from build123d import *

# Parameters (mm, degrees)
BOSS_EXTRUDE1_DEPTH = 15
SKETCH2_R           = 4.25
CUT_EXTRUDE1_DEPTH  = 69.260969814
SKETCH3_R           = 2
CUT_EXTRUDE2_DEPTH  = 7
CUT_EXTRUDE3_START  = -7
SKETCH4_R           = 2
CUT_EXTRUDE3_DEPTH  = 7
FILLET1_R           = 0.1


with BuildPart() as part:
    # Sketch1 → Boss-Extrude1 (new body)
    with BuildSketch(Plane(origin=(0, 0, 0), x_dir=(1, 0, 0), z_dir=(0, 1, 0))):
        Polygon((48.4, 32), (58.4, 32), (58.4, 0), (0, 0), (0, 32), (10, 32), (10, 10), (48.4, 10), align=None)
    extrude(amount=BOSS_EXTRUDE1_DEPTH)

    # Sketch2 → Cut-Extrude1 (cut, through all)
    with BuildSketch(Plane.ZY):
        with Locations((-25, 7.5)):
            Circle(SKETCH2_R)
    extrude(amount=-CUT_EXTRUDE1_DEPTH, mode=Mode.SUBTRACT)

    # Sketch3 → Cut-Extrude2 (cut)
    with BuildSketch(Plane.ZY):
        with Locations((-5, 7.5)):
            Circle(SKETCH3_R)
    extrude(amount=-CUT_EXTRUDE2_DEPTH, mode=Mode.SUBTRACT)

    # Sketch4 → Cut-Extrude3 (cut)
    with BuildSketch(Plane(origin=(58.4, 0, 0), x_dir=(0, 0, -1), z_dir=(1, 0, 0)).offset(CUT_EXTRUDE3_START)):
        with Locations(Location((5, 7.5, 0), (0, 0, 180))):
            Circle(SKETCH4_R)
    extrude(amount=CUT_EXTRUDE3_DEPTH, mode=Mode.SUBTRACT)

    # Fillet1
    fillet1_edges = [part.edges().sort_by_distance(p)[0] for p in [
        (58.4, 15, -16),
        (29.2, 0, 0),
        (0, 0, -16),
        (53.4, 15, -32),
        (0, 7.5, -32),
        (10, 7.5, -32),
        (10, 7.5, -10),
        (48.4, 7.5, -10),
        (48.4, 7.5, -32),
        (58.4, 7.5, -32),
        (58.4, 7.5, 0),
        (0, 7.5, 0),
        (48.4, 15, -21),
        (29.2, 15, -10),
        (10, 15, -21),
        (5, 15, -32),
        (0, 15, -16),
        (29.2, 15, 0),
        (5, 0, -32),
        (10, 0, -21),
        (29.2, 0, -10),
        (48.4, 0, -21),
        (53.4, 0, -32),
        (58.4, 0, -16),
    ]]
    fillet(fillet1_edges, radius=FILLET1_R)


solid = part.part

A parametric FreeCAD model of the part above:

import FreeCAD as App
import Part
import Sketcher

V = App.Vector


def edges_at(feature, points):
    """Names of the edges that pass closest to the given points."""
    edges = feature.Shape.Edges
    near = lambda p: min(range(len(edges)), key=lambda i: edges[i].distToShape(Part.Vertex(*p))[0])
    return sorted({f"Edge{near(p) + 1}" for p in points})

doc = App.newDocument("Part")
body = doc.addObject("PartDesign::Body", "Body")

sketch1 = doc.addObject("Sketcher::SketchObject", "Sketch")
body.addObject(sketch1)
sketch1.AttachmentSupport = (doc.XZ_Plane, [""])
sketch1.MapMode = "FlatFace"
sketch1.addGeometry(Part.LineSegment(V(58, -32, 0), V(48, -32, 0)), False)
sketch1.addGeometry(Part.LineSegment(V(48, -32, 0), V(48, -10, 0)), False)
sketch1.addGeometry(Part.LineSegment(V(48, -10, 0), V(10, -10, 0)), False)
sketch1.addGeometry(Part.LineSegment(V(10, -10, 0), V(10, -32, 0)), False)
sketch1.addGeometry(Part.LineSegment(V(10, -32, 0), V(0, -32, 0)), False)
sketch1.addGeometry(Part.LineSegment(V(0, -32, 0), V(0, 0, 0)), False)
sketch1.addGeometry(Part.LineSegment(V(0, 0, 0), V(58, 0, 0)), False)
sketch1.addGeometry(Part.LineSegment(V(58, 0, 0), V(58, -32, 0)), False)
sketch1.addConstraint(Sketcher.Constraint("Coincident", 0, 2, 1, 1))
sketch1.addConstraint(Sketcher.Constraint("Coincident", 1, 2, 2, 1))
sketch1.addConstraint(Sketcher.Constraint("Coincident", 2, 2, 3, 1))
sketch1.addConstraint(Sketcher.Constraint("Coincident", 3, 2, 4, 1))
sketch1.addConstraint(Sketcher.Constraint("Coincident", 4, 2, 5, 1))
sketch1.addConstraint(Sketcher.Constraint("Coincident", 5, 2, 6, 1))
sketch1.addConstraint(Sketcher.Constraint("Coincident", 6, 2, 7, 1))
sketch1.addConstraint(Sketcher.Constraint("Coincident", 7, 2, 0, 1))
sketch1.addConstraint(Sketcher.Constraint("Horizontal", 0))
sketch1.addConstraint(Sketcher.Constraint("Vertical", 1))
sketch1.addConstraint(Sketcher.Constraint("Horizontal", 2))
sketch1.addConstraint(Sketcher.Constraint("Vertical", 3))
sketch1.addConstraint(Sketcher.Constraint("Horizontal", 4))
sketch1.addConstraint(Sketcher.Constraint("Vertical", 5))
sketch1.addConstraint(Sketcher.Constraint("Horizontal", 6))
sketch1.addConstraint(Sketcher.Constraint("Vertical", 7))
sketch1.addConstraint(Sketcher.Constraint("Coincident", 5, 2, -1, 1))
sketch1.addConstraint(Sketcher.Constraint("Horizontal", 0, 2, 3, 2))
sketch1.addConstraint(Sketcher.Constraint("Equal", 0, 4))
sketch1.addConstraint(Sketcher.Constraint("DistanceX", 0, 2, 0, 1, 10.0))
sketch1.addConstraint(Sketcher.Constraint("DistanceY", 1, 1, 1, 2, 22.0))
sketch1.addConstraint(Sketcher.Constraint("DistanceY", 5, 1, 5, 2, 32.0))
sketch1.addConstraint(Sketcher.Constraint("DistanceX", 2, 2, 2, 1, 38.4))
pad1 = doc.addObject("PartDesign::Pad", "Pad")
body.addObject(pad1)
pad1.Profile = sketch1
pad1.Length = 15
pad1.Reversed = True

sketch2 = doc.addObject("Sketcher::SketchObject", "Sketch001")
body.addObject(sketch2)
sketch2.AttachmentSupport = (doc.YZ_Plane, [""])
sketch2.MapMode = "FlatFace"
sketch2.addGeometry(Part.Circle(V(7.5, -25, 0), V(0, 0, 1), 4.2), False)
sketch2.addConstraint(Sketcher.Constraint("Diameter", 0, 8.5))
sketch2.addConstraint(Sketcher.Constraint("DistanceY", 0, 3, -1, 1, 25.0))
sketch2.addConstraint(Sketcher.Constraint("DistanceX", -1, 1, 0, 3, 7.5))
pocket1 = doc.addObject("PartDesign::Pocket", "Pocket")
body.addObject(pocket1)
pocket1.Profile = sketch2
pocket1.Type = "ThroughAll"
pocket1.Reversed = True

sketch3 = doc.addObject("Sketcher::SketchObject", "Sketch002")
body.addObject(sketch3)
sketch3.AttachmentSupport = (doc.YZ_Plane, [""])
sketch3.MapMode = "FlatFace"
sketch3.addGeometry(Part.Circle(V(7.5, -5, 0), V(0, 0, 1), 2), False)
sketch3.addConstraint(Sketcher.Constraint("Diameter", 0, 4.0))
sketch3.addConstraint(Sketcher.Constraint("DistanceY", 0, 3, -1, 1, 5.0))
sketch3.addConstraint(Sketcher.Constraint("DistanceX", -1, 1, 0, 3, 7.5))
pocket2 = doc.addObject("PartDesign::Pocket", "Pocket001")
body.addObject(pocket2)
pocket2.Profile = sketch3
pocket2.Length = 7
pocket2.Reversed = True

sketch4 = doc.addObject("Sketcher::SketchObject", "Sketch003")
body.addObject(sketch4)
sketch4.AttachmentSupport = (doc.YZ_Plane, [""])
sketch4.MapMode = "FlatFace"
sketch4.AttachmentOffset = App.Placement(V(0, 0, 51.4), App.Rotation())
sketch4.addGeometry(Part.Circle(V(7.5, -5, 0), V(0, 0, 1), 2), False)
sketch4.addConstraint(Sketcher.Constraint("Diameter", 0, 4.0))
sketch4.addConstraint(Sketcher.Constraint("DistanceY", 0, 3, -1, 1, 5.0))
sketch4.addConstraint(Sketcher.Constraint("DistanceX", -1, 1, 0, 3, 7.5))
pocket3 = doc.addObject("PartDesign::Pocket", "Pocket002")
body.addObject(pocket3)
pocket3.Profile = sketch4
pocket3.Length = 7
pocket3.Reversed = True
doc.recompute()

fillet = doc.addObject("PartDesign::Fillet", "Fillet")
body.addObject(fillet)
fillet.Base = (pocket3, edges_at(pocket3, [
    (58.4, 15, -16),
    (29.2, 0, 0),
    (0, 0, -16),
    (53.4, 15, -32),
    (0, 7.5, -32),
    (10, 7.5, -32),
    (10, 7.5, -10),
    (48.4, 7.5, -10),
    (48.4, 7.5, -32),
    (58.4, 7.5, -32),
    (58.4, 7.5, 0),
    (0, 7.5, 0),
    (48.4, 15, -21),
    (29.2, 15, -10),
    (10, 15, -21),
    (5, 15, -32),
    (0, 15, -16),
    (29.2, 15, 0),
    (5, 0, -32),
    (10, 0, -21),
    (29.2, 0, -10),
    (48.4, 0, -21),
    (53.4, 0, -32),
    (58.4, 0, -16),
]))
fillet.Radius = 0.1

doc.recompute()
